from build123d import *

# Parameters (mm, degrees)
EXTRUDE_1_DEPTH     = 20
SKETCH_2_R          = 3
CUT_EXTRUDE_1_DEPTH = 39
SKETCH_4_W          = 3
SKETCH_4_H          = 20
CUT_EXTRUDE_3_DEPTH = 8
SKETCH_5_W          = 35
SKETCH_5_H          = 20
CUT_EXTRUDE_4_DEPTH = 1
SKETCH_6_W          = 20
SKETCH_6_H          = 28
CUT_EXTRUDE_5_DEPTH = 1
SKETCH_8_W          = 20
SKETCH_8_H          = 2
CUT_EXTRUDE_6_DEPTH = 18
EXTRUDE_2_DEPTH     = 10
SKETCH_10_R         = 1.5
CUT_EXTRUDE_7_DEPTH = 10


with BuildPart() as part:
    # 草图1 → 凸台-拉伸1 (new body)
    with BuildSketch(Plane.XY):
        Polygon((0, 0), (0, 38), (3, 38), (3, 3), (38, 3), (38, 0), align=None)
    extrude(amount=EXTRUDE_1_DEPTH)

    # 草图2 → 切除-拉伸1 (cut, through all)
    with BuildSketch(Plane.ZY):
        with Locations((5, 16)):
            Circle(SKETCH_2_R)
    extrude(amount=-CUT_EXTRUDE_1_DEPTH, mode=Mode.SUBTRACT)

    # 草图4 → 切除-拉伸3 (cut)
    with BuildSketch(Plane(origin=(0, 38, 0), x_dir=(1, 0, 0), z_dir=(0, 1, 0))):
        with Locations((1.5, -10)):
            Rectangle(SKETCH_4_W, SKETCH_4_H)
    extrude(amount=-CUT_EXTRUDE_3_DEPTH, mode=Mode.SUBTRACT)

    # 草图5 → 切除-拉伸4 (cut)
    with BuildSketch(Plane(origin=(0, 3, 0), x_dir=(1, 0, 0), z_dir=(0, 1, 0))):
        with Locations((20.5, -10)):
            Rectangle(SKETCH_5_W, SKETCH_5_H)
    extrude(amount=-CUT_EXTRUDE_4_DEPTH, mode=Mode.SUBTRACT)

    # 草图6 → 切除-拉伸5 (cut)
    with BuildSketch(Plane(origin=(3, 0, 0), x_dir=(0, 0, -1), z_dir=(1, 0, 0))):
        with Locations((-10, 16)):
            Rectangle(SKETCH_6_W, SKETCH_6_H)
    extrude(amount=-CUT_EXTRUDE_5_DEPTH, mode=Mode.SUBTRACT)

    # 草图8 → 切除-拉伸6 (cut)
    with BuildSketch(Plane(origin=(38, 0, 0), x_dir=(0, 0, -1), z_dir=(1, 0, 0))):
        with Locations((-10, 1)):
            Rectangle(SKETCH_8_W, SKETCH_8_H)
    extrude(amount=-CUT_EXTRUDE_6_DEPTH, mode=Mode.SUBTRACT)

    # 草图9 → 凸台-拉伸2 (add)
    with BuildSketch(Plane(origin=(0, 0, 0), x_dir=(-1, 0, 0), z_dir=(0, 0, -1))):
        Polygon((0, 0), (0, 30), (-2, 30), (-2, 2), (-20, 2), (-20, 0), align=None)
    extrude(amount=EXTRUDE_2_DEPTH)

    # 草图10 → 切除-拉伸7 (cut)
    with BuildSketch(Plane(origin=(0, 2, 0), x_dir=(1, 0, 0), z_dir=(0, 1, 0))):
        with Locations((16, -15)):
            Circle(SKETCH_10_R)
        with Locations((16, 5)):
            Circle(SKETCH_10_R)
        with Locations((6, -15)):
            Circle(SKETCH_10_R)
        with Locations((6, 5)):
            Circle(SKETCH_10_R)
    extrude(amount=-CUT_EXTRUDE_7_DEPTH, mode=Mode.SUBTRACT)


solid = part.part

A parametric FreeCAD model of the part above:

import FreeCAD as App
import Part
import Sketcher
from FreeCAD import Vector
Q = App.Units.Quantity


def add_polygon(sketch, points):
    """Adds a closed chain of lines whose ends are joined by coincident constraints."""
    first, n = sketch.GeometryCount, len(points)
    for a, b in zip(points, points[1:] + points[:1]):
        sketch.addGeometry(Part.LineSegment(App.Vector(*a, 0), App.Vector(*b, 0)), False)
    for i in range(n):
        sketch.addConstraint(Sketcher.Constraint("Coincident", first + i, 2, first + (i + 1) % n, 1))

doc = App.newDocument("Part")
body = doc.addObject("PartDesign::Body", "Body")

# Sketch on XY plane
sketch1 = body.newObject("Sketcher::SketchObject", "Sketch")
sketch1.AttachmentSupport = (doc.getObject("XY_Plane"), [""])
sketch1.MapMode = "FlatFace"
add_polygon(sketch1, [(0, 38), (0, 0), (38, 0), (38, 3), (3, 3), (3, 38)])  # lines 0-5
sketch1.addConstraint([
    Sketcher.Constraint("Vertical", 0),
    Sketcher.Constraint("Horizontal", 1),
    Sketcher.Constraint("Vertical", 2),
    Sketcher.Constraint("Horizontal", 3),
    Sketcher.Constraint("Vertical", 4),
    Sketcher.Constraint("Horizontal", 5),
    Sketcher.Constraint("Coincident", 0, 2, -1, 1),
    Sketcher.Constraint("Equal", 1, 0),
    Sketcher.Constraint("Equal", 5, 2),
    Sketcher.Constraint("DistanceX", 1, 1, 1, 2, Q("38 mm")),
    Sketcher.Constraint("DistanceX", 3, 2, 3, 1, Q("35 mm")),
])
pad1 = body.newObject("PartDesign::Pad", "Pad")
pad1.Profile = sketch1
pad1.Length = 20

# Sketch on YZ plane
sketch2 = body.newObject("Sketcher::SketchObject", "Sketch001")
sketch2.AttachmentSupport = (doc.getObject("YZ_Plane"), [""])
sketch2.MapMode = "FlatFace"
sketch2.addGeometry(Part.Circle(Vector(16, 5, 0), Vector(0, 0, 1), 3), False)
sketch2.addConstraint([
    Sketcher.Constraint("Diameter", 0, Q("6 mm")),
    Sketcher.Constraint("DistanceX", -1, 1, 0, 3, Q("16 mm")),
    Sketcher.Constraint("DistanceY", -1, 1, 0, 3, Q("5 mm")),
])
pocket1 = body.newObject("PartDesign::Pocket", "Pocket")
pocket1.Profile = sketch2
pocket1.Type = "ThroughAll"
pocket1.Reversed = True

# Sketch on XZ plane
sketch3 = body.newObject("Sketcher::SketchObject", "Sketch002")
sketch3.AttachmentSupport = (doc.getObject("XZ_Plane"), [""])
sketch3.MapMode = "FlatFace"
sketch3.AttachmentOffset = App.Placement(Vector(0, 0, -38), App.Rotation())
add_polygon(sketch3, [(0, 0), (0, 20), (3, 20), (3, 0)])  # lines 0-3
sketch3.addConstraint([
    Sketcher.Constraint("Vertical", 0),
    Sketcher.Constraint("Horizontal", 1),
    Sketcher.Constraint("Vertical", 2),
    Sketcher.Constraint("Horizontal", 3),
    Sketcher.Constraint("Coincident", 3, 2, -1, 1),
    Sketcher.Constraint("DistanceX", 1, 1, 1, 2, Q("3 mm")),
    Sketcher.Constraint("DistanceY", 0, 1, 0, 2, Q("20 mm")),
])
pocket2 = body.newObject("PartDesign::Pocket", "Pocket001")
pocket2.Profile = sketch3
pocket2.Length = 8
pocket2.Reversed = True

# Sketch on XZ plane
sketch4 = body.newObject("Sketcher::SketchObject", "Sketch003")
sketch4.AttachmentSupport = (doc.getObject("XZ_Plane"), [""])
sketch4.MapMode = "FlatFace"
sketch4.AttachmentOffset = App.Placement(Vector(0, 0, -3), App.Rotation())
add_polygon(sketch4, [(3, 0), (3, 20), (38, 20), (38, 0)])  # lines 0-3
sketch4.addConstraint([
    Sketcher.Constraint("Vertical", 0),
    Sketcher.Constraint("Horizontal", 1),
    Sketcher.Constraint("Vertical", 2),
    Sketcher.Constraint("Horizontal", 3),
    Sketcher.Constraint("PointOnObject", 2, 2, -1),
    Sketcher.Constraint("DistanceX", 1, 1, 1, 2, Q("35 mm")),
    Sketcher.Constraint("DistanceY", 0, 1, 0, 2, Q("20 mm")),
    Sketcher.Constraint("DistanceX", -1, 1, 0, 2, Q("3 mm")),
])
pocket3 = body.newObject("PartDesign::Pocket", "Pocket002")
pocket3.Profile = sketch4
pocket3.Length = 1
pocket3.Reversed = True

# Sketch on YZ plane
sketch5 = body.newObject("Sketcher::SketchObject", "Sketch004")
sketch5.AttachmentSupport = (doc.getObject("YZ_Plane"), [""])
sketch5.MapMode = "FlatFace"
sketch5.AttachmentOffset = App.Placement(Vector(0, 0, 3), App.Rotation())
add_polygon(sketch5, [(30, 20), (2, 20), (2, 0), (30, 0)])  # lines 0-3
sketch5.addConstraint([
    Sketcher.Constraint("Horizontal", 0),
    Sketcher.Constraint("Vertical", 1),
    Sketcher.Constraint("Horizontal", 2),
    Sketcher.Constraint("Vertical", 3),
    Sketcher.Constraint("PointOnObject", 1, 2, -1),
    Sketcher.Constraint("DistanceX", 0, 2, 0, 1, Q("28 mm")),
    Sketcher.Constraint("DistanceY", 1, 2, 1, 1, Q("20 mm")),
    Sketcher.Constraint("DistanceX", -1, 1, 0, 2, Q("2 mm")),
])
pocket4 = body.newObject("PartDesign::Pocket", "Pocket003")
pocket4.Profile = sketch5
pocket4.Length = 1

# Sketch on YZ plane
sketch6 = body.newObject("Sketcher::SketchObject", "Sketch005")
sketch6.AttachmentSupport = (doc.getObject("YZ_Plane"), [""])
sketch6.MapMode = "FlatFace"
sketch6.AttachmentOffset = App.Placement(Vector(0, 0, 38), App.Rotation())
add_polygon(sketch6, [(2, 20), (0, 20), (0, 0), (2, 0)])  # lines 0-3
sketch6.addConstraint([
    Sketcher.Constraint("Horizontal", 0),
    Sketcher.Constraint("Vertical", 1),
    Sketcher.Constraint("Horizontal", 2),
    Sketcher.Constraint("Vertical", 3),
    Sketcher.Constraint("Coincident", 1, 2, -1, 1),
    Sketcher.Constraint("DistanceX", 0, 2, 0, 1, Q("2 mm")),
    Sketcher.Constraint("DistanceY", 1, 2, 1, 1, Q("20 mm")),
])
pocket5 = body.newObject("PartDesign::Pocket", "Pocket004")
pocket5.Profile = sketch6
pocket5.Length = 18

# Sketch on XY plane
sketch7 = body.newObject("Sketcher::SketchObject", "Sketch006")
sketch7.AttachmentSupport = (doc.getObject("XY_Plane"), [""])
sketch7.MapMode = "FlatFace"
add_polygon(sketch7, [(0, 0), (0, 30), (2, 30), (2, 2), (20, 2), (20, 0)])  # lines 0-5
sketch7.addConstraint([
    Sketcher.Constraint("Vertical", 0),
    Sketcher.Constraint("Horizontal", 1),
    Sketcher.Constraint("Vertical", 2),
    Sketcher.Constraint("Horizontal", 3),
    Sketcher.Constraint("Vertical", 4),
    Sketcher.Constraint("Horizontal", 5),
    Sketcher.Constraint("Coincident", 5, 2, -1, 1),
    Sketcher.Constraint("Equal", 1, 4),
    Sketcher.Constraint("DistanceX", 1, 1, 1, 2, Q("2 mm")),
    Sketcher.Constraint("DistanceX", 3, 1, 3, 2, Q("18 mm")),
    Sketcher.Constraint("DistanceY", 0, 1, 0, 2, Q("30 mm")),
])
pad2 = body.newObject("PartDesign::Pad", "Pad001")
pad2.Profile = sketch7
pad2.Length = 10
pad2.Reversed = True

# Sketch on XZ plane
sketch8 = body.newObject("Sketcher::SketchObject", "Sketch007")
sketch8.AttachmentSupport = (doc.getObject("XZ_Plane"), [""])
sketch8.MapMode = "FlatFace"
sketch8.AttachmentOffset = App.Placement(Vector(0, 0, -2), App.Rotation())
sketch8.addGeometry([
    Part.Circle(Vector(16, 15, 0), Vector(0, 0, 1), 1.5),
    Part.Circle(Vector(16, -5, 0), Vector(0, 0, 1), 1.5),
    Part.Circle(Vector(6, 15, 0), Vector(0, 0, 1), 1.5),
    Part.Circle(Vector(6, -5, 0), Vector(0, 0, 1), 1.5),
], False)
sketch8.addConstraint([
    Sketcher.Constraint("Equal", 0, 1),
    Sketcher.Constraint("Equal", 1, 2),
    Sketcher.Constraint("Equal", 2, 3),
    Sketcher.Constraint("Horizontal", 0, 3, 2, 3),
    Sketcher.Constraint("Horizontal", 1, 3, 3, 3),
    Sketcher.Constraint("Vertical", 0, 3, 1, 3),
    Sketcher.Constraint("Vertical", 2, 3, 3, 3),
    Sketcher.Constraint("Diameter", 0, Q("3 mm")),
    Sketcher.Constraint("DistanceX", -1, 1, 0, 3, Q("16 mm")),
    Sketcher.Constraint("DistanceY", -1, 1, 0, 3, Q("15 mm")),
    Sketcher.Constraint("DistanceY", 1, 3, -1, 1, Q("5 mm")),
    Sketcher.Constraint("DistanceX", -1, 1, 2, 3, Q("6 mm")),
])
pocket6 = body.newObject("PartDesign::Pocket", "Pocket005")
pocket6.Profile = sketch8
pocket6.Length = 10
pocket6.Reversed = True

doc.recompute()
